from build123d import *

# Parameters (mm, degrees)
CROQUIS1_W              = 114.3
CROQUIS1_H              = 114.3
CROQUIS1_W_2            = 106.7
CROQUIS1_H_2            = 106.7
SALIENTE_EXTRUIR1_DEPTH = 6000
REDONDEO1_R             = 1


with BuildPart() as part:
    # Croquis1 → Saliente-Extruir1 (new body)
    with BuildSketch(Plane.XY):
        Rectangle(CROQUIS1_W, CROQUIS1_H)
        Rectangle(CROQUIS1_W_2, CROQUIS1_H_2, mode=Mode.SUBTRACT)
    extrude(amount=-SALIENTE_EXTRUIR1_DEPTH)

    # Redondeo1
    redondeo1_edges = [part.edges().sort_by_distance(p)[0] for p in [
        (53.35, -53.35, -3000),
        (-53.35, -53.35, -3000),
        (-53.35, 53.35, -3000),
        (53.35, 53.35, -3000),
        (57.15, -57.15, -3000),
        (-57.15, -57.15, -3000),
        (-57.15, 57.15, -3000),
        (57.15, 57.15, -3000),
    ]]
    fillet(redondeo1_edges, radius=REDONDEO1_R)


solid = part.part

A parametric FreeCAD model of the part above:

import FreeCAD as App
import Part
import Sketcher
from FreeCAD import Vector
Q = App.Units.Quantity


def edges_at(feature, points):
    """Names of the edges that pass closest to the given points."""
    edges = feature.Shape.Edges
    near = lambda p: min(range(len(edges)), key=lambda i: edges[i].distToShape(Part.Vertex(*p))[0])
    return sorted({f"Edge{near(p) + 1}" for p in points})

doc = App.newDocument("Part")
body = doc.addObject("PartDesign::Body", "Body")

sketch1 = doc.addObject("Sketcher::SketchObject", "Sketch")
body.addObject(sketch1)
sketch1.AttachmentSupport = (doc.XY_Plane, [""])
sketch1.MapMode = "FlatFace"
sketch1.addGeometry([
    Part.LineSegment(Vector(-57.15, 57.15, 0), Vector(-57.15, -57.15, 0)),
    Part.LineSegment(Vector(-57.15, -57.15, 0), Vector(57.15, -57.15, 0)),
    Part.LineSegment(Vector(57.15, -57.15, 0), Vector(57.15, 57.15, 0)),
    Part.LineSegment(Vector(57.15, 57.15, 0), Vector(-57.15, 57.15, 0)),
    Part.LineSegment(Vector(53.35, -53.35, 0), Vector(-53.35, -53.35, 0)),
    Part.LineSegment(Vector(-53.35, -53.35, 0), Vector(-53.35, 53.35, 0)),
    Part.LineSegment(Vector(-53.35, 53.35, 0), Vector(53.35, 53.35, 0)),
    Part.LineSegment(Vector(53.35, 53.35, 0), Vector(53.35, -53.35, 0)),
], False)
sketch1.addConstraint([
    Sketcher.Constraint("Coincident", 0, 2, 1, 1),
    Sketcher.Constraint("Coincident", 1, 2, 2, 1),
    Sketcher.Constraint("Coincident", 2, 2, 3, 1),
    Sketcher.Constraint("Coincident", 3, 2, 0, 1),
    Sketcher.Constraint("Coincident", 4, 2, 5, 1),
    Sketcher.Constraint("Coincident", 5, 2, 6, 1),
    Sketcher.Constraint("Coincident", 6, 2, 7, 1),
    Sketcher.Constraint("Coincident", 7, 2, 4, 1),
    Sketcher.Constraint("Vertical", 0),
    Sketcher.Constraint("Horizontal", 1),
    Sketcher.Constraint("Vertical", 2),
    Sketcher.Constraint("Horizontal", 3),
    Sketcher.Constraint("Horizontal", 4),
    Sketcher.Constraint("Vertical", 5),
    Sketcher.Constraint("Horizontal", 6),
    Sketcher.Constraint("Vertical", 7),
    Sketcher.Constraint("Symmetric", 0, 2, 2, 2, -1, 1),
    Sketcher.Constraint("Symmetric", 4, 2, 6, 2, -1, 1),
    Sketcher.Constraint("Equal", 3, 0),
    Sketcher.Constraint("Equal", 6, 5),
    Sketcher.Constraint("DistanceX", 1, 1, 1, 2, Q("114.3 mm")),
    Sketcher.Constraint("DistanceX", 4, 2, 4, 1, Q("106.7 mm")),
])
pad1 = doc.addObject("PartDesign::Pad", "Pad")
body.addObject(pad1)
pad1.Profile = sketch1
pad1.Length = 6000
pad1.Reversed = True
doc.recompute()

fillet = doc.addObject("PartDesign::Fillet", "Fillet")
body.addObject(fillet)
fillet.Base = (pad1, edges_at(pad1, [
    (53.35, -53.35, -3000),
    (-53.35, -53.35, -3000),
    (-53.35, 53.35, -3000),
    (53.35, 53.35, -3000),
    (57.15, -57.15, -3000),
    (-57.15, -57.15, -3000),
    (-57.15, 57.15, -3000),
    (57.15, 57.15, -3000),
]))
fillet.Radius = 1

doc.recompute()
